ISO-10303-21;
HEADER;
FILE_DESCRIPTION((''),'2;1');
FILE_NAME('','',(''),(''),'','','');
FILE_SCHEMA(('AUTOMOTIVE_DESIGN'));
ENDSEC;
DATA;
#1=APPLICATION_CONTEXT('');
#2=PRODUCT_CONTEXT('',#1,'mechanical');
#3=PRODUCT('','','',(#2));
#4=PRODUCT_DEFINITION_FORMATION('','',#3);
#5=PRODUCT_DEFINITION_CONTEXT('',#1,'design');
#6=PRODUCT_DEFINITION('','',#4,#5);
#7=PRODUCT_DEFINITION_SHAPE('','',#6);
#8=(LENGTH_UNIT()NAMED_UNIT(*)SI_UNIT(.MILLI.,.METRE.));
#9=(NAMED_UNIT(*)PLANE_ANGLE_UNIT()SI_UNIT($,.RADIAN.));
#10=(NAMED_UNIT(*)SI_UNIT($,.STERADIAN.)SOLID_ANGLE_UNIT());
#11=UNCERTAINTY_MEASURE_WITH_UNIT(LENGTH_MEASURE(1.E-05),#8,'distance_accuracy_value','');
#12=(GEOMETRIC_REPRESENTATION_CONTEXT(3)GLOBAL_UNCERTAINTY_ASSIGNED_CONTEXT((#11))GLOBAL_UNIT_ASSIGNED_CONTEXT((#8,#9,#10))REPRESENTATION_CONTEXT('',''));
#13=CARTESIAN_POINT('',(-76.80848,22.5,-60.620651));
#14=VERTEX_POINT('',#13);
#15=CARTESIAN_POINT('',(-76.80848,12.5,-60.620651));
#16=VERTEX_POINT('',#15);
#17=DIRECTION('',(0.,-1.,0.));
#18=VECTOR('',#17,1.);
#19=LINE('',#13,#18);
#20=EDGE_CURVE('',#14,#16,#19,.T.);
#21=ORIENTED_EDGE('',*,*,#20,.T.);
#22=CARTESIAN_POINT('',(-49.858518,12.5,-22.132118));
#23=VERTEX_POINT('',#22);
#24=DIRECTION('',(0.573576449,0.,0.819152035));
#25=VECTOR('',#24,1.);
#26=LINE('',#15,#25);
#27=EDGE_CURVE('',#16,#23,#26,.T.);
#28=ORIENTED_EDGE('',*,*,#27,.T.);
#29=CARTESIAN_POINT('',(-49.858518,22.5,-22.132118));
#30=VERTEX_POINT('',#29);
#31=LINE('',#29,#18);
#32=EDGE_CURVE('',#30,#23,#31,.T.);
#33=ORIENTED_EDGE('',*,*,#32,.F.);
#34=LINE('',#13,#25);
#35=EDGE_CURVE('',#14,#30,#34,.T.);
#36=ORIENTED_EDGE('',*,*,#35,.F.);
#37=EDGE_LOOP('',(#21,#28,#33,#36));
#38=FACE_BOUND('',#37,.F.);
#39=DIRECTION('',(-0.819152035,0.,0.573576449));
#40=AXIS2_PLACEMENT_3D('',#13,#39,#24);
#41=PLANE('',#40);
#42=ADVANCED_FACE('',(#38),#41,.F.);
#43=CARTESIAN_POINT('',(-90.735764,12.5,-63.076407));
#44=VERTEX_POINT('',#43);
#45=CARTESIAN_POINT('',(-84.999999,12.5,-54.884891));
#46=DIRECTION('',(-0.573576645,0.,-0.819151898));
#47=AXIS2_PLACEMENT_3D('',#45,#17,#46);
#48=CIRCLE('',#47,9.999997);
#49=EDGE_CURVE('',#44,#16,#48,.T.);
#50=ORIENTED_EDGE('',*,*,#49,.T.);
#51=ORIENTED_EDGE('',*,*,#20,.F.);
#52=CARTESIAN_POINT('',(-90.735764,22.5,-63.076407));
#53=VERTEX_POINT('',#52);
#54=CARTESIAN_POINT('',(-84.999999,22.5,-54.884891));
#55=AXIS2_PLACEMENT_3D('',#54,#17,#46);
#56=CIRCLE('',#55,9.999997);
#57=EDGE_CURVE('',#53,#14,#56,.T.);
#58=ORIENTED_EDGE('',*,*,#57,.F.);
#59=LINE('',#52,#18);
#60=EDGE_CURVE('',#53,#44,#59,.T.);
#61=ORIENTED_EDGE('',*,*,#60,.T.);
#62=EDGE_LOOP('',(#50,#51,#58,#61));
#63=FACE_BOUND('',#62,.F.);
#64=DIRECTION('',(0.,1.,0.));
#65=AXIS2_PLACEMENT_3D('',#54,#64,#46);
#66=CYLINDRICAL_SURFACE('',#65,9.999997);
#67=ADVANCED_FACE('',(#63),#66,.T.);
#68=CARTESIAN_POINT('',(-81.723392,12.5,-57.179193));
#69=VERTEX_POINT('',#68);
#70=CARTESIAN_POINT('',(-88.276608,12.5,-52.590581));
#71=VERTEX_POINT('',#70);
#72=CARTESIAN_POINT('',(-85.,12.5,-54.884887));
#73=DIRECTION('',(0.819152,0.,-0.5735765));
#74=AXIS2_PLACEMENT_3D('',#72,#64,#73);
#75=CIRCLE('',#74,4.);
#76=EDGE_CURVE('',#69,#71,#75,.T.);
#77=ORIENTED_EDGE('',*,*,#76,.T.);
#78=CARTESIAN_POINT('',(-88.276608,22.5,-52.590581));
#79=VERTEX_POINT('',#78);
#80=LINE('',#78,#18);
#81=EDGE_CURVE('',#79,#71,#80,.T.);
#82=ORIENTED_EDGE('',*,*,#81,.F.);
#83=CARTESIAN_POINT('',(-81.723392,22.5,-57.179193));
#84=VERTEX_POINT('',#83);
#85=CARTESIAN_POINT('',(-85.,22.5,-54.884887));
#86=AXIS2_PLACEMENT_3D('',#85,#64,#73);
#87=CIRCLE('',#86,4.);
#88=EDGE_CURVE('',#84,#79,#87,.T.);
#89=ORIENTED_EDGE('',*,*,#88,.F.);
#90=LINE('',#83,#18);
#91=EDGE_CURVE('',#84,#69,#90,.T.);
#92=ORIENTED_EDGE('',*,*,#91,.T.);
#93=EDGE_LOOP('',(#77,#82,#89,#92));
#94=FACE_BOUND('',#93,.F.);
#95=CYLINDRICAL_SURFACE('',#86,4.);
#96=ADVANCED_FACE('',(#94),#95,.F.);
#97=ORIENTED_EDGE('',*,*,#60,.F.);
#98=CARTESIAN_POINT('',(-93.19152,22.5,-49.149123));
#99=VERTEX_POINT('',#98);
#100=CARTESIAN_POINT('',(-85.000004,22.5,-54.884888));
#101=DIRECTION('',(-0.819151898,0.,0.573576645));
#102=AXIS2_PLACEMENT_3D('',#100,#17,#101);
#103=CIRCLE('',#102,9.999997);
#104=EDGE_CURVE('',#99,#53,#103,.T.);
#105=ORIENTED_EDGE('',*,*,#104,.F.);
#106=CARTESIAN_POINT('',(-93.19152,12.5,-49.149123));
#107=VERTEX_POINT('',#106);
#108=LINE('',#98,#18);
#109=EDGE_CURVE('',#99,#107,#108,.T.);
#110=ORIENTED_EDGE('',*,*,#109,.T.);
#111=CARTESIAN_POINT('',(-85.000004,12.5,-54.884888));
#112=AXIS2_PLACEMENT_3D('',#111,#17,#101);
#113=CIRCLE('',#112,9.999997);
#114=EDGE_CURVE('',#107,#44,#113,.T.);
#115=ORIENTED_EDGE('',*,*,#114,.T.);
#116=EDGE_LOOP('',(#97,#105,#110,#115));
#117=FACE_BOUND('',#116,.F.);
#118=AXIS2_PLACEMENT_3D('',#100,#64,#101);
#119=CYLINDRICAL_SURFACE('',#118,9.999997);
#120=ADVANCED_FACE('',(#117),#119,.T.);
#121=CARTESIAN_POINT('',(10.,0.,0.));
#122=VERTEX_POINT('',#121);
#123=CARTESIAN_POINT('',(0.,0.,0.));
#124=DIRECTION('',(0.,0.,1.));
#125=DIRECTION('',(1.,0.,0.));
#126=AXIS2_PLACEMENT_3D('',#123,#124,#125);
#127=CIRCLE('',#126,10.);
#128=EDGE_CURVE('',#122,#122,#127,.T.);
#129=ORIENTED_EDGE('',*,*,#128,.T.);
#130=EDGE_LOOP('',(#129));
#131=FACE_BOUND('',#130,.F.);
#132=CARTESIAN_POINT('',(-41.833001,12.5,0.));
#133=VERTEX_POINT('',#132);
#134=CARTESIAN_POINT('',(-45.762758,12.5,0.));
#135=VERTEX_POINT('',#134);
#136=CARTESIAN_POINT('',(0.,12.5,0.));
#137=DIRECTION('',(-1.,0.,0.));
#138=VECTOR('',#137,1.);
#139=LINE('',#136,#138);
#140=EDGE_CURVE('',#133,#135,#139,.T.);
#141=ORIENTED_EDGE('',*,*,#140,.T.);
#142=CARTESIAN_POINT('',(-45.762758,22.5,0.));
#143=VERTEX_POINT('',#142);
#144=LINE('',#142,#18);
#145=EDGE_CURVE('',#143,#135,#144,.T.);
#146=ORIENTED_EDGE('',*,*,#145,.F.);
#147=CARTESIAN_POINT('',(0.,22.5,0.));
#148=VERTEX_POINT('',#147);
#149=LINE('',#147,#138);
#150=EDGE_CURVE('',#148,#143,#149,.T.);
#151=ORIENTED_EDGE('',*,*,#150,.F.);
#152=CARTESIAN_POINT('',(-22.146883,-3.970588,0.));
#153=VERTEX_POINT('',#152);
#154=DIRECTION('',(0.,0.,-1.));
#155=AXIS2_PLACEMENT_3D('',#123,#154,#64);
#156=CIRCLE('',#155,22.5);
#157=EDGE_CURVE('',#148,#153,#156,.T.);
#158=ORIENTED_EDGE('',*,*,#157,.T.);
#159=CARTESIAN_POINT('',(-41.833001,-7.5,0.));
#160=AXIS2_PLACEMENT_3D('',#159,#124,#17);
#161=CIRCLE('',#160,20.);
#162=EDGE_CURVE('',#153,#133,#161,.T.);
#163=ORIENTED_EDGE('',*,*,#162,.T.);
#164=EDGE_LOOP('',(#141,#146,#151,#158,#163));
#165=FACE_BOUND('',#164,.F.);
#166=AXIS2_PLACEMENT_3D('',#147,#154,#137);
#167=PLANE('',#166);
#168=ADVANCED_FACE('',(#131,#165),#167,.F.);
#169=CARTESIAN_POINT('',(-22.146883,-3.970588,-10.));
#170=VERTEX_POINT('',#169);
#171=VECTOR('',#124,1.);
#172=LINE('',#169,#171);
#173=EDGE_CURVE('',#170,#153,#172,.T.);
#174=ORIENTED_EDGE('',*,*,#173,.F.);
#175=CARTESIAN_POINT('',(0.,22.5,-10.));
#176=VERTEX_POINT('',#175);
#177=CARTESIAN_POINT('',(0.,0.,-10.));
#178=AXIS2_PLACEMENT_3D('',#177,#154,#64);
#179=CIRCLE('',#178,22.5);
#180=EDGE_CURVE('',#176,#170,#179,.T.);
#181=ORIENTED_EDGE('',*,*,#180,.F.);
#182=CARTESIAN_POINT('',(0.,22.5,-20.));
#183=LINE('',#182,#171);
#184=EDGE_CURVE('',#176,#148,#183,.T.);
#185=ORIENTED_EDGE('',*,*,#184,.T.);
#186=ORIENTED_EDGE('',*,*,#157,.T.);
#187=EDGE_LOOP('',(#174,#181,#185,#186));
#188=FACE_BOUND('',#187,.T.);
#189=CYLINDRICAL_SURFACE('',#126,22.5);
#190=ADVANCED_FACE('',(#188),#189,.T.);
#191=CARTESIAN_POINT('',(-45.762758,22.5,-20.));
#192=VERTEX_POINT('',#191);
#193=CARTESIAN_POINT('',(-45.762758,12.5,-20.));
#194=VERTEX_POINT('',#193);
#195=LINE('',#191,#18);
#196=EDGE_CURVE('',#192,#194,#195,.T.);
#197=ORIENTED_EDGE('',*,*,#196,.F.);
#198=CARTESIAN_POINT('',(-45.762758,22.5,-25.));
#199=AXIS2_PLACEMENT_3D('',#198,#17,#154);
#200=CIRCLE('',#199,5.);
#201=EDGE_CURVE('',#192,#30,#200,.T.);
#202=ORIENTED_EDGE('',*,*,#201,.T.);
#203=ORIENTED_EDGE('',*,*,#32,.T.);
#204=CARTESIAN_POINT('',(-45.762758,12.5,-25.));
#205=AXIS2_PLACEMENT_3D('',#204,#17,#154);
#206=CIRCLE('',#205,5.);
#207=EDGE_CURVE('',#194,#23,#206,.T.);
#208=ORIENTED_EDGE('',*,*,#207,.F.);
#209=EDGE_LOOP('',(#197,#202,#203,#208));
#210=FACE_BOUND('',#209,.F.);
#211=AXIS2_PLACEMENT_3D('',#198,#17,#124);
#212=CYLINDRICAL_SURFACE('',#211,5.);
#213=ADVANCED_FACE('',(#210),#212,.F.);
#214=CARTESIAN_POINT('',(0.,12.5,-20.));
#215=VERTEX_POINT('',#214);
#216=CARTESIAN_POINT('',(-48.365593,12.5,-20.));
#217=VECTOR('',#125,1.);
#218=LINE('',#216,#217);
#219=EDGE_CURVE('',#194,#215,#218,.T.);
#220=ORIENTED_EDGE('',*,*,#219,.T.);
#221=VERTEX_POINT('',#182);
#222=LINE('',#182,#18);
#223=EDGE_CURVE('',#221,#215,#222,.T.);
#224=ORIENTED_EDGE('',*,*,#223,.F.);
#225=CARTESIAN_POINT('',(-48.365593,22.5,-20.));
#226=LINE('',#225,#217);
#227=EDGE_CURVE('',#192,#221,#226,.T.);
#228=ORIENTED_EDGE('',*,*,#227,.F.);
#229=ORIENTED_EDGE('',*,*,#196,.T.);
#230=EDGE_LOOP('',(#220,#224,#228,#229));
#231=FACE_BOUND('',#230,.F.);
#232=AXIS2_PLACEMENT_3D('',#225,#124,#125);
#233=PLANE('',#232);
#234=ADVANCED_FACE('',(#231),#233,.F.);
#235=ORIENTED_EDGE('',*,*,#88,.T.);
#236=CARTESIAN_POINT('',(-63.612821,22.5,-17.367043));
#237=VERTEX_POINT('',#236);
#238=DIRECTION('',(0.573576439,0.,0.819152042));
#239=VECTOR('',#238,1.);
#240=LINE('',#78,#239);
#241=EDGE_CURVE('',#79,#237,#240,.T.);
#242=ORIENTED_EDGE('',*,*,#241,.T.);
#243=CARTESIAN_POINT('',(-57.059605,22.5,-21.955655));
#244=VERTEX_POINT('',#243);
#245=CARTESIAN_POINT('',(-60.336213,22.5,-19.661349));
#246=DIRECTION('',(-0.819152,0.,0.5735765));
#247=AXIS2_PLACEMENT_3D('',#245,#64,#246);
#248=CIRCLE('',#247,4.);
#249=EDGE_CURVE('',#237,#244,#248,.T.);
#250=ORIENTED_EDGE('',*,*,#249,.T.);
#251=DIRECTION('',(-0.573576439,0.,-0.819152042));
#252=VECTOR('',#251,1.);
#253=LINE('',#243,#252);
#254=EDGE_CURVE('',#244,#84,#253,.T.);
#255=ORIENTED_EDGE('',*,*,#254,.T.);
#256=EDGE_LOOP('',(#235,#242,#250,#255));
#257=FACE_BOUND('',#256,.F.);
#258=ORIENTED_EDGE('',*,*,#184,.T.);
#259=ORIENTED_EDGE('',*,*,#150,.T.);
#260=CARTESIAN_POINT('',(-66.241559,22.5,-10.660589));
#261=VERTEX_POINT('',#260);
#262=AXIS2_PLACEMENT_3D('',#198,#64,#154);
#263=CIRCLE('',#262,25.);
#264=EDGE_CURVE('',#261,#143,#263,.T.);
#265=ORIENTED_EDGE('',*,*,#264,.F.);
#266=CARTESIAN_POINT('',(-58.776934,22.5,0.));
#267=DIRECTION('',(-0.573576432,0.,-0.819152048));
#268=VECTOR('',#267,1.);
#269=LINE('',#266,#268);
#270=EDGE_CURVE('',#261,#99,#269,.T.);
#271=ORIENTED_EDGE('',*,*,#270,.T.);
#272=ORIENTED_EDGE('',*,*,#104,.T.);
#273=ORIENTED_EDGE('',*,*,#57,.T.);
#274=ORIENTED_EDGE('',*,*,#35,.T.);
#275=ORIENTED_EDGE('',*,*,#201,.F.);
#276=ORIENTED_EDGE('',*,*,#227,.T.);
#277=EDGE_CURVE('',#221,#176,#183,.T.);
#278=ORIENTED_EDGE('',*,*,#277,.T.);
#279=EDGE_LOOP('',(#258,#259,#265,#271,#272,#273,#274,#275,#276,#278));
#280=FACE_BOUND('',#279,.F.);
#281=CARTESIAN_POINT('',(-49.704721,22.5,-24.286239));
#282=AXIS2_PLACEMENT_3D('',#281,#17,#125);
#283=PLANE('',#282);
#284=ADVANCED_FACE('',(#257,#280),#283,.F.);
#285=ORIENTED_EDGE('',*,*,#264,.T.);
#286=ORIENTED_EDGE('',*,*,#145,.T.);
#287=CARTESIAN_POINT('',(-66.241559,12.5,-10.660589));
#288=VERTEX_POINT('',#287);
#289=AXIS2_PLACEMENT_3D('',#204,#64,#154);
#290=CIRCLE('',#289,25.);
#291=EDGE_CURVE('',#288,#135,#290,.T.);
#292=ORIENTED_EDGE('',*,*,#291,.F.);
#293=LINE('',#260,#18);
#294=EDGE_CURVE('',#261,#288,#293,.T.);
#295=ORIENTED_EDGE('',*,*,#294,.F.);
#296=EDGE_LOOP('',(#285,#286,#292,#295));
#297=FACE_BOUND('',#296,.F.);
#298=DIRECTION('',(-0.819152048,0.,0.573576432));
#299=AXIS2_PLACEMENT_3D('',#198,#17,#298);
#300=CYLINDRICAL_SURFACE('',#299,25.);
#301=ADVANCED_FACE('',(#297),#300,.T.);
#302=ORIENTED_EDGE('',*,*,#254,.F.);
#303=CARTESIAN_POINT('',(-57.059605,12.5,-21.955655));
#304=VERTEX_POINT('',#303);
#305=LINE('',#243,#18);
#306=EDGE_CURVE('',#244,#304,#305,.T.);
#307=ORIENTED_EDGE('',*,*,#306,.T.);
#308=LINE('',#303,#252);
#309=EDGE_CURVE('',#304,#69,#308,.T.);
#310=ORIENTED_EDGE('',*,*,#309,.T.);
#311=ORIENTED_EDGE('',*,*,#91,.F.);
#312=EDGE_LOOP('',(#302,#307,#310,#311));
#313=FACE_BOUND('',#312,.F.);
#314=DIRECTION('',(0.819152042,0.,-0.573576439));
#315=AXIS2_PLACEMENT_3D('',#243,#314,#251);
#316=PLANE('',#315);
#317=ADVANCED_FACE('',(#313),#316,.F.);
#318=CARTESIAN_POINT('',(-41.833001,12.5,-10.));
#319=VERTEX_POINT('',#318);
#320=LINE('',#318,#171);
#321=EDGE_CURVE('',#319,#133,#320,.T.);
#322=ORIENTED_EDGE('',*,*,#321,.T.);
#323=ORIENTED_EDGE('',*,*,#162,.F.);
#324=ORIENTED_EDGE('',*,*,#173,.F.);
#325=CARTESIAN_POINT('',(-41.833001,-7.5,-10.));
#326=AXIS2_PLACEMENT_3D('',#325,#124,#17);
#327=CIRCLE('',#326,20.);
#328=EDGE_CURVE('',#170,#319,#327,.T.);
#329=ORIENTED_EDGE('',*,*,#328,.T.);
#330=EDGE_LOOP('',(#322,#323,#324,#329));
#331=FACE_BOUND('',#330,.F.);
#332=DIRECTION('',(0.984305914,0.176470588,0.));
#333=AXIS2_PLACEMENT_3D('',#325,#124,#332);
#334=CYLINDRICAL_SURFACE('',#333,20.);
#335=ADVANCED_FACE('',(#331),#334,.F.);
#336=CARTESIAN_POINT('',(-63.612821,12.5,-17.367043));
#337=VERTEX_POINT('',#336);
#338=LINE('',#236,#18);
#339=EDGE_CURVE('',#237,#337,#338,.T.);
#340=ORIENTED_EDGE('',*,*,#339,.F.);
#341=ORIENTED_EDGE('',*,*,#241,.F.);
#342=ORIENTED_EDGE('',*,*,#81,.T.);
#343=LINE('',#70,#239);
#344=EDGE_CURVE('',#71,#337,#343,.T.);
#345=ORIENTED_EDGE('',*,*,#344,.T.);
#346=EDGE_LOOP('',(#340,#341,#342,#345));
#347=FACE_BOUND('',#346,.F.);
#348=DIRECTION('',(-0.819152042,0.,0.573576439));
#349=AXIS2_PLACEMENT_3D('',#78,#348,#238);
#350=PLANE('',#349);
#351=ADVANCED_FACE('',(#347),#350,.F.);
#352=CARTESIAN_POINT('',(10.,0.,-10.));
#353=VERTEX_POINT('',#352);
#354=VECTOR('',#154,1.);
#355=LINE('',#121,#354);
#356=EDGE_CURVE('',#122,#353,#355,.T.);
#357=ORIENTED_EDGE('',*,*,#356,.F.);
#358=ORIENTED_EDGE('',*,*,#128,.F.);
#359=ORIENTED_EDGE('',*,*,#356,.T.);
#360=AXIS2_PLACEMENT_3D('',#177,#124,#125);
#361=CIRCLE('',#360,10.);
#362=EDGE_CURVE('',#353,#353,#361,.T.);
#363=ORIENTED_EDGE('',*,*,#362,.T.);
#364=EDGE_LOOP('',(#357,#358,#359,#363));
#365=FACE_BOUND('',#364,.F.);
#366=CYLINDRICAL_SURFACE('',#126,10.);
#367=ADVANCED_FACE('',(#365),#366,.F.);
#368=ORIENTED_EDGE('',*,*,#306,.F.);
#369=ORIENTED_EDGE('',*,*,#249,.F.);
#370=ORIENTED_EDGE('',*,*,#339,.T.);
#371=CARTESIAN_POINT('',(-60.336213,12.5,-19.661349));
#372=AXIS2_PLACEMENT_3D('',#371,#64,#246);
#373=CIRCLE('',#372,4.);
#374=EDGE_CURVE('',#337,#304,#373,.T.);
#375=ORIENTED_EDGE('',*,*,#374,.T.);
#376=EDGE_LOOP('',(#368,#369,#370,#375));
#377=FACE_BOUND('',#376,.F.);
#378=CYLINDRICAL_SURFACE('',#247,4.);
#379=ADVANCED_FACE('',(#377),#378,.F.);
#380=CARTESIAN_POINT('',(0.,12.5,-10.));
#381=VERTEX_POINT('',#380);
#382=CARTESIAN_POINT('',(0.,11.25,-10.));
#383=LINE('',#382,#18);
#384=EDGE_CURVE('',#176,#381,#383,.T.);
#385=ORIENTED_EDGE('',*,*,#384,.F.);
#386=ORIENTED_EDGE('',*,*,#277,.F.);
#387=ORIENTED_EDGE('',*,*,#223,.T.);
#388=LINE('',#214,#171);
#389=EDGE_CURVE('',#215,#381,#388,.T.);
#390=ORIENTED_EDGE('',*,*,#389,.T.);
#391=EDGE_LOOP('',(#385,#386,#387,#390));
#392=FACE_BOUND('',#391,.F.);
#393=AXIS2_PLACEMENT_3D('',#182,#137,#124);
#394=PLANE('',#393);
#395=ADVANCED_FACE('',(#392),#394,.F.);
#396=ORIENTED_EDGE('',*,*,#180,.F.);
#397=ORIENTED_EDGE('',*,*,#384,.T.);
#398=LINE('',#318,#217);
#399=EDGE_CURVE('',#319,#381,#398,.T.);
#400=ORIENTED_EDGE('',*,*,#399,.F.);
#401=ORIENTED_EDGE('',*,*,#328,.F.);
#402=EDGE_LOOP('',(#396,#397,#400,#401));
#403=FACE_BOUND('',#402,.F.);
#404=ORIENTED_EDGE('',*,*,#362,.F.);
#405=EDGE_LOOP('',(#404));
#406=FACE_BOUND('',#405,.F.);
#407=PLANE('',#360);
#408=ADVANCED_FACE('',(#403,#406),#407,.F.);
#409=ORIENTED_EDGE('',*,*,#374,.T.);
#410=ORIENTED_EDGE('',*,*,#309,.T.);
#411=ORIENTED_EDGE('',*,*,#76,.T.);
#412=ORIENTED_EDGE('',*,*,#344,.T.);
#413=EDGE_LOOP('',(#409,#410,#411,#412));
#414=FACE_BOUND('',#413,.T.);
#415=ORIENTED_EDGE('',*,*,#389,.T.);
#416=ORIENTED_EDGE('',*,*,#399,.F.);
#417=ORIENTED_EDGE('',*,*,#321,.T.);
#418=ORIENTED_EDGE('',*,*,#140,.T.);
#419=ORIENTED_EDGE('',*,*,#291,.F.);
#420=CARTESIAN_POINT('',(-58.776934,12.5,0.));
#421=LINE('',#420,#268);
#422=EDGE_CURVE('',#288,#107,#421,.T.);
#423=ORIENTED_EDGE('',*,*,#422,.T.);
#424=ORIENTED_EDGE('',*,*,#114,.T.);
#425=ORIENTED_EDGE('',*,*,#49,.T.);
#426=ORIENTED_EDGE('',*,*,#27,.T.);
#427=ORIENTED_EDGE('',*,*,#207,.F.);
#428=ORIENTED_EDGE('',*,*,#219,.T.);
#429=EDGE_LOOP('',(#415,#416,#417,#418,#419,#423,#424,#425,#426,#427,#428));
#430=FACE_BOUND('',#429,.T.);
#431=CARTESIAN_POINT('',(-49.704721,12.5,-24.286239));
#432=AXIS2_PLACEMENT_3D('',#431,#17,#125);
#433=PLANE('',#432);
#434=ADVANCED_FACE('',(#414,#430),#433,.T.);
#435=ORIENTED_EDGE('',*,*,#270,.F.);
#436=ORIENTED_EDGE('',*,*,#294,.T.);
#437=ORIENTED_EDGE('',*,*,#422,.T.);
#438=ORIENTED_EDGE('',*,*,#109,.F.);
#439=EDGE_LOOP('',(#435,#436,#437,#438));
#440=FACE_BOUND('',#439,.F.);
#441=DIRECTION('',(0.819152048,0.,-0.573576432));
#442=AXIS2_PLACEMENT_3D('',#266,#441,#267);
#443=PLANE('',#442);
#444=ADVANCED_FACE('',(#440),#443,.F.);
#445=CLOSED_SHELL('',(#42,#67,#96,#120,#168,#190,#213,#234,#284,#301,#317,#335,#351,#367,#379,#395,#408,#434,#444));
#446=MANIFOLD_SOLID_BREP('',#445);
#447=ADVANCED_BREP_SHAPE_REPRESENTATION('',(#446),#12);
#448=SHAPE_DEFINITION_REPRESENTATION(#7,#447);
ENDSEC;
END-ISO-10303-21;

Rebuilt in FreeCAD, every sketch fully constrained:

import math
import FreeCAD as App
import Part
import Sketcher

V = App.Vector
Q = App.Units.Quantity


def edges_at(feature, points):
    """Names of the edges that pass closest to the given points."""
    edges = feature.Shape.Edges
    near = lambda p: min(range(len(edges)), key=lambda i: edges[i].distToShape(Part.Vertex(*p))[0])
    return sorted({f"Edge{near(p) + 1}" for p in points})

doc = App.newDocument("Part")
params = doc.addObject("Spreadsheet::Sheet", "Params")
for row, (alias, value) in enumerate([
    ("sketch1_diameter", "45 mm"),
    ("sketch1_diameter2", "20 mm"),
    ("pad1_length", "10 mm"),
    ("sketch2_radius", "4 mm"),
    ("sketch2_height", "20 mm"),
    ("sketch2_length", "60 mm"),
    ("sketch2_length2", "43 mm"),
    ("pad2_length", "10 mm"),
    ("fillet_radius", "25 mm"),
    ("fillet2_radius", "5 mm"),
    ("fillet3_radius", "20 mm"),
], start=1):
    params.set(f"A{row}", alias)
    params.set(f"B{row}", "=" + value)
    params.setAlias(f"B{row}", alias)

body = doc.addObject("PartDesign::Body", "Body")

sketch1 = body.newObject("Sketcher::SketchObject", "Sketch")
sketch1.AttachmentSupport = (doc.getObject("XY_Plane"), [""])
sketch1.MapMode = "FlatFace"
sketch1.addGeometry([
    Part.Circle(V(0, 0, 0), V(0, 0, 1), 22.5),
    Part.Circle(V(0, 0, 0), V(0, 0, 1), 10),
], False)
sketch1.addConstraint([
    Sketcher.Constraint("Coincident", 0, 3, -1, 1),
    Sketcher.Constraint("Coincident", 1, 3, -1, 1),
    Sketcher.Constraint("Diameter", 0, 45.0),
    Sketcher.Constraint("Diameter", 1, 20.0),
])
sketch1.setExpression("Constraints[2]", "Params.sketch1_diameter")
sketch1.setExpression("Constraints[3]", "Params.sketch1_diameter2")
pad1 = body.newObject("PartDesign::Pad", "Pad")
pad1.Profile = sketch1
pad1.setExpression("Length", "Params.pad1_length")
pad1.Reversed = True

sketch2 = body.newObject("Sketcher::SketchObject", "Sketch001")
sketch2.AttachmentSupport = (doc.getObject("XZ_Plane"), [""])
sketch2.MapMode = "FlatFace"
sketch2.AttachmentOffset = App.Placement(V(0, 0, -22.5), App.Rotation())
sketch2.addGeometry([
    Part.LineSegment(V(0, -20, 0), V(0, 0, 0)),
    Part.LineSegment(V(0, 0, 0), V(-58.776934, 0, 0)),
    Part.LineSegment(V(-58.776934, 0, 0), V(-93.19152, -49.149123, 0)),
    Part.ArcOfCircle(Part.Circle(V(-85.000004, -54.884888, 0), V(0, 0, 1), 9.999997), math.radians(144.999985), math.radians(235.000015)),
    Part.ArcOfCircle(Part.Circle(V(-84.999999, -54.884891, 0), V(0, 0, 1), 9.999997), math.radians(-125.000015), math.radians(-34.999985)),
    Part.LineSegment(V(-76.80848, -60.620651, 0), V(-48.365593, -20, 0)),
    Part.LineSegment(V(-48.365593, -20, 0), V(0, -20, 0)),
    Part.ArcOfCircle(Part.Circle(V(-60.336213, -19.661349, 0), V(0, 0, 1), 4), math.radians(-35.000004), math.radians(144.999996)),
    Part.LineSegment(V(-57.059605, -21.955655, 0), V(-81.723392, -57.179193, 0)),
    Part.ArcOfCircle(Part.Circle(V(-85, -54.884887, 0), V(0, 0, 1), 4), math.radians(144.999996), math.radians(324.999996)),
    Part.LineSegment(V(-88.276608, -52.590581, 0), V(-63.612821, -17.367043, 0)),
], False)
sketch2.addConstraint([
    Sketcher.Constraint("Coincident", 0, 2, 1, 1),
    Sketcher.Constraint("Coincident", 1, 2, 2, 1),
    Sketcher.Constraint("Tangent", 2, 2, 3, 1),
    Sketcher.Constraint("Tangent", 3, 2, 4, 1),
    Sketcher.Constraint("Tangent", 4, 2, 5, 1),
    Sketcher.Constraint("Coincident", 5, 2, 6, 1),
    Sketcher.Constraint("Coincident", 6, 2, 0, 1),
    Sketcher.Constraint("Tangent", 7, 1, 8, 1),
    Sketcher.Constraint("Tangent", 8, 2, 9, 2),
    Sketcher.Constraint("Tangent", 9, 1, 10, 1),
    Sketcher.Constraint("Tangent", 10, 2, 7, 2),
    Sketcher.Constraint("Vertical", 0),
    Sketcher.Constraint("Horizontal", 1),
    Sketcher.Constraint("Horizontal", 6),
    Sketcher.Constraint("Coincident", 0, 2, -1, 1),
    Sketcher.Constraint("Coincident", 9, 3, 3, 3),
    Sketcher.Constraint("Equal", 3, 4),
    Sketcher.Constraint("Equal", 7, 9),
    Sketcher.Constraint("Parallel", 2, 5),
    Sketcher.Constraint("Parallel", 5, 8),
    Sketcher.Constraint("Radius", 7, 4.0),
    Sketcher.Constraint("DistanceY", 0, 1, 0, 2, 20.0),
    Sketcher.Constraint("Angle", 2, Q("-125 deg")),
    Sketcher.Constraint("Distance", 2, 60.0),
    Sketcher.Constraint("Distance", 8, 43.0),
    Sketcher.Constraint("DistanceX", 4, 3, -1, 1, 84.999999),
    Sketcher.Constraint("Radius", 3, 9.999997),
    Sketcher.Constraint("DistanceX", 3, 2, 3, 3, 5.73576),
])
sketch2.setExpression("Constraints[20]", "Params.sketch2_radius")
sketch2.setExpression("Constraints[21]", "Params.sketch2_height")
sketch2.setExpression("Constraints[23]", "Params.sketch2_length")
sketch2.setExpression("Constraints[24]", "Params.sketch2_length2")
pad2 = body.newObject("PartDesign::Pad", "Pad001")
pad2.Profile = sketch2
pad2.setExpression("Length", "Params.pad2_length")
doc.recompute()

fillet = body.newObject("PartDesign::Fillet", "Fillet")
fillet.Base = (pad2, edges_at(pad2, [(-58.777, 17.5, 0)]))
fillet.setExpression("Radius", "Params.fillet_radius")
doc.recompute()

fillet2 = body.newObject("PartDesign::Fillet", "Fillet001")
fillet2.Base = (fillet, edges_at(fillet, [(-48.366, 17.5, -20)]))
fillet2.setExpression("Radius", "Params.fillet2_radius")
doc.recompute()

fillet3 = body.newObject("PartDesign::Fillet", "Fillet002")
fillet3.Base = (fillet2, edges_at(fillet2, [(-18.708, 12.5, -5)]))
fillet3.setExpression("Radius", "Params.fillet3_radius")

doc.recompute()
